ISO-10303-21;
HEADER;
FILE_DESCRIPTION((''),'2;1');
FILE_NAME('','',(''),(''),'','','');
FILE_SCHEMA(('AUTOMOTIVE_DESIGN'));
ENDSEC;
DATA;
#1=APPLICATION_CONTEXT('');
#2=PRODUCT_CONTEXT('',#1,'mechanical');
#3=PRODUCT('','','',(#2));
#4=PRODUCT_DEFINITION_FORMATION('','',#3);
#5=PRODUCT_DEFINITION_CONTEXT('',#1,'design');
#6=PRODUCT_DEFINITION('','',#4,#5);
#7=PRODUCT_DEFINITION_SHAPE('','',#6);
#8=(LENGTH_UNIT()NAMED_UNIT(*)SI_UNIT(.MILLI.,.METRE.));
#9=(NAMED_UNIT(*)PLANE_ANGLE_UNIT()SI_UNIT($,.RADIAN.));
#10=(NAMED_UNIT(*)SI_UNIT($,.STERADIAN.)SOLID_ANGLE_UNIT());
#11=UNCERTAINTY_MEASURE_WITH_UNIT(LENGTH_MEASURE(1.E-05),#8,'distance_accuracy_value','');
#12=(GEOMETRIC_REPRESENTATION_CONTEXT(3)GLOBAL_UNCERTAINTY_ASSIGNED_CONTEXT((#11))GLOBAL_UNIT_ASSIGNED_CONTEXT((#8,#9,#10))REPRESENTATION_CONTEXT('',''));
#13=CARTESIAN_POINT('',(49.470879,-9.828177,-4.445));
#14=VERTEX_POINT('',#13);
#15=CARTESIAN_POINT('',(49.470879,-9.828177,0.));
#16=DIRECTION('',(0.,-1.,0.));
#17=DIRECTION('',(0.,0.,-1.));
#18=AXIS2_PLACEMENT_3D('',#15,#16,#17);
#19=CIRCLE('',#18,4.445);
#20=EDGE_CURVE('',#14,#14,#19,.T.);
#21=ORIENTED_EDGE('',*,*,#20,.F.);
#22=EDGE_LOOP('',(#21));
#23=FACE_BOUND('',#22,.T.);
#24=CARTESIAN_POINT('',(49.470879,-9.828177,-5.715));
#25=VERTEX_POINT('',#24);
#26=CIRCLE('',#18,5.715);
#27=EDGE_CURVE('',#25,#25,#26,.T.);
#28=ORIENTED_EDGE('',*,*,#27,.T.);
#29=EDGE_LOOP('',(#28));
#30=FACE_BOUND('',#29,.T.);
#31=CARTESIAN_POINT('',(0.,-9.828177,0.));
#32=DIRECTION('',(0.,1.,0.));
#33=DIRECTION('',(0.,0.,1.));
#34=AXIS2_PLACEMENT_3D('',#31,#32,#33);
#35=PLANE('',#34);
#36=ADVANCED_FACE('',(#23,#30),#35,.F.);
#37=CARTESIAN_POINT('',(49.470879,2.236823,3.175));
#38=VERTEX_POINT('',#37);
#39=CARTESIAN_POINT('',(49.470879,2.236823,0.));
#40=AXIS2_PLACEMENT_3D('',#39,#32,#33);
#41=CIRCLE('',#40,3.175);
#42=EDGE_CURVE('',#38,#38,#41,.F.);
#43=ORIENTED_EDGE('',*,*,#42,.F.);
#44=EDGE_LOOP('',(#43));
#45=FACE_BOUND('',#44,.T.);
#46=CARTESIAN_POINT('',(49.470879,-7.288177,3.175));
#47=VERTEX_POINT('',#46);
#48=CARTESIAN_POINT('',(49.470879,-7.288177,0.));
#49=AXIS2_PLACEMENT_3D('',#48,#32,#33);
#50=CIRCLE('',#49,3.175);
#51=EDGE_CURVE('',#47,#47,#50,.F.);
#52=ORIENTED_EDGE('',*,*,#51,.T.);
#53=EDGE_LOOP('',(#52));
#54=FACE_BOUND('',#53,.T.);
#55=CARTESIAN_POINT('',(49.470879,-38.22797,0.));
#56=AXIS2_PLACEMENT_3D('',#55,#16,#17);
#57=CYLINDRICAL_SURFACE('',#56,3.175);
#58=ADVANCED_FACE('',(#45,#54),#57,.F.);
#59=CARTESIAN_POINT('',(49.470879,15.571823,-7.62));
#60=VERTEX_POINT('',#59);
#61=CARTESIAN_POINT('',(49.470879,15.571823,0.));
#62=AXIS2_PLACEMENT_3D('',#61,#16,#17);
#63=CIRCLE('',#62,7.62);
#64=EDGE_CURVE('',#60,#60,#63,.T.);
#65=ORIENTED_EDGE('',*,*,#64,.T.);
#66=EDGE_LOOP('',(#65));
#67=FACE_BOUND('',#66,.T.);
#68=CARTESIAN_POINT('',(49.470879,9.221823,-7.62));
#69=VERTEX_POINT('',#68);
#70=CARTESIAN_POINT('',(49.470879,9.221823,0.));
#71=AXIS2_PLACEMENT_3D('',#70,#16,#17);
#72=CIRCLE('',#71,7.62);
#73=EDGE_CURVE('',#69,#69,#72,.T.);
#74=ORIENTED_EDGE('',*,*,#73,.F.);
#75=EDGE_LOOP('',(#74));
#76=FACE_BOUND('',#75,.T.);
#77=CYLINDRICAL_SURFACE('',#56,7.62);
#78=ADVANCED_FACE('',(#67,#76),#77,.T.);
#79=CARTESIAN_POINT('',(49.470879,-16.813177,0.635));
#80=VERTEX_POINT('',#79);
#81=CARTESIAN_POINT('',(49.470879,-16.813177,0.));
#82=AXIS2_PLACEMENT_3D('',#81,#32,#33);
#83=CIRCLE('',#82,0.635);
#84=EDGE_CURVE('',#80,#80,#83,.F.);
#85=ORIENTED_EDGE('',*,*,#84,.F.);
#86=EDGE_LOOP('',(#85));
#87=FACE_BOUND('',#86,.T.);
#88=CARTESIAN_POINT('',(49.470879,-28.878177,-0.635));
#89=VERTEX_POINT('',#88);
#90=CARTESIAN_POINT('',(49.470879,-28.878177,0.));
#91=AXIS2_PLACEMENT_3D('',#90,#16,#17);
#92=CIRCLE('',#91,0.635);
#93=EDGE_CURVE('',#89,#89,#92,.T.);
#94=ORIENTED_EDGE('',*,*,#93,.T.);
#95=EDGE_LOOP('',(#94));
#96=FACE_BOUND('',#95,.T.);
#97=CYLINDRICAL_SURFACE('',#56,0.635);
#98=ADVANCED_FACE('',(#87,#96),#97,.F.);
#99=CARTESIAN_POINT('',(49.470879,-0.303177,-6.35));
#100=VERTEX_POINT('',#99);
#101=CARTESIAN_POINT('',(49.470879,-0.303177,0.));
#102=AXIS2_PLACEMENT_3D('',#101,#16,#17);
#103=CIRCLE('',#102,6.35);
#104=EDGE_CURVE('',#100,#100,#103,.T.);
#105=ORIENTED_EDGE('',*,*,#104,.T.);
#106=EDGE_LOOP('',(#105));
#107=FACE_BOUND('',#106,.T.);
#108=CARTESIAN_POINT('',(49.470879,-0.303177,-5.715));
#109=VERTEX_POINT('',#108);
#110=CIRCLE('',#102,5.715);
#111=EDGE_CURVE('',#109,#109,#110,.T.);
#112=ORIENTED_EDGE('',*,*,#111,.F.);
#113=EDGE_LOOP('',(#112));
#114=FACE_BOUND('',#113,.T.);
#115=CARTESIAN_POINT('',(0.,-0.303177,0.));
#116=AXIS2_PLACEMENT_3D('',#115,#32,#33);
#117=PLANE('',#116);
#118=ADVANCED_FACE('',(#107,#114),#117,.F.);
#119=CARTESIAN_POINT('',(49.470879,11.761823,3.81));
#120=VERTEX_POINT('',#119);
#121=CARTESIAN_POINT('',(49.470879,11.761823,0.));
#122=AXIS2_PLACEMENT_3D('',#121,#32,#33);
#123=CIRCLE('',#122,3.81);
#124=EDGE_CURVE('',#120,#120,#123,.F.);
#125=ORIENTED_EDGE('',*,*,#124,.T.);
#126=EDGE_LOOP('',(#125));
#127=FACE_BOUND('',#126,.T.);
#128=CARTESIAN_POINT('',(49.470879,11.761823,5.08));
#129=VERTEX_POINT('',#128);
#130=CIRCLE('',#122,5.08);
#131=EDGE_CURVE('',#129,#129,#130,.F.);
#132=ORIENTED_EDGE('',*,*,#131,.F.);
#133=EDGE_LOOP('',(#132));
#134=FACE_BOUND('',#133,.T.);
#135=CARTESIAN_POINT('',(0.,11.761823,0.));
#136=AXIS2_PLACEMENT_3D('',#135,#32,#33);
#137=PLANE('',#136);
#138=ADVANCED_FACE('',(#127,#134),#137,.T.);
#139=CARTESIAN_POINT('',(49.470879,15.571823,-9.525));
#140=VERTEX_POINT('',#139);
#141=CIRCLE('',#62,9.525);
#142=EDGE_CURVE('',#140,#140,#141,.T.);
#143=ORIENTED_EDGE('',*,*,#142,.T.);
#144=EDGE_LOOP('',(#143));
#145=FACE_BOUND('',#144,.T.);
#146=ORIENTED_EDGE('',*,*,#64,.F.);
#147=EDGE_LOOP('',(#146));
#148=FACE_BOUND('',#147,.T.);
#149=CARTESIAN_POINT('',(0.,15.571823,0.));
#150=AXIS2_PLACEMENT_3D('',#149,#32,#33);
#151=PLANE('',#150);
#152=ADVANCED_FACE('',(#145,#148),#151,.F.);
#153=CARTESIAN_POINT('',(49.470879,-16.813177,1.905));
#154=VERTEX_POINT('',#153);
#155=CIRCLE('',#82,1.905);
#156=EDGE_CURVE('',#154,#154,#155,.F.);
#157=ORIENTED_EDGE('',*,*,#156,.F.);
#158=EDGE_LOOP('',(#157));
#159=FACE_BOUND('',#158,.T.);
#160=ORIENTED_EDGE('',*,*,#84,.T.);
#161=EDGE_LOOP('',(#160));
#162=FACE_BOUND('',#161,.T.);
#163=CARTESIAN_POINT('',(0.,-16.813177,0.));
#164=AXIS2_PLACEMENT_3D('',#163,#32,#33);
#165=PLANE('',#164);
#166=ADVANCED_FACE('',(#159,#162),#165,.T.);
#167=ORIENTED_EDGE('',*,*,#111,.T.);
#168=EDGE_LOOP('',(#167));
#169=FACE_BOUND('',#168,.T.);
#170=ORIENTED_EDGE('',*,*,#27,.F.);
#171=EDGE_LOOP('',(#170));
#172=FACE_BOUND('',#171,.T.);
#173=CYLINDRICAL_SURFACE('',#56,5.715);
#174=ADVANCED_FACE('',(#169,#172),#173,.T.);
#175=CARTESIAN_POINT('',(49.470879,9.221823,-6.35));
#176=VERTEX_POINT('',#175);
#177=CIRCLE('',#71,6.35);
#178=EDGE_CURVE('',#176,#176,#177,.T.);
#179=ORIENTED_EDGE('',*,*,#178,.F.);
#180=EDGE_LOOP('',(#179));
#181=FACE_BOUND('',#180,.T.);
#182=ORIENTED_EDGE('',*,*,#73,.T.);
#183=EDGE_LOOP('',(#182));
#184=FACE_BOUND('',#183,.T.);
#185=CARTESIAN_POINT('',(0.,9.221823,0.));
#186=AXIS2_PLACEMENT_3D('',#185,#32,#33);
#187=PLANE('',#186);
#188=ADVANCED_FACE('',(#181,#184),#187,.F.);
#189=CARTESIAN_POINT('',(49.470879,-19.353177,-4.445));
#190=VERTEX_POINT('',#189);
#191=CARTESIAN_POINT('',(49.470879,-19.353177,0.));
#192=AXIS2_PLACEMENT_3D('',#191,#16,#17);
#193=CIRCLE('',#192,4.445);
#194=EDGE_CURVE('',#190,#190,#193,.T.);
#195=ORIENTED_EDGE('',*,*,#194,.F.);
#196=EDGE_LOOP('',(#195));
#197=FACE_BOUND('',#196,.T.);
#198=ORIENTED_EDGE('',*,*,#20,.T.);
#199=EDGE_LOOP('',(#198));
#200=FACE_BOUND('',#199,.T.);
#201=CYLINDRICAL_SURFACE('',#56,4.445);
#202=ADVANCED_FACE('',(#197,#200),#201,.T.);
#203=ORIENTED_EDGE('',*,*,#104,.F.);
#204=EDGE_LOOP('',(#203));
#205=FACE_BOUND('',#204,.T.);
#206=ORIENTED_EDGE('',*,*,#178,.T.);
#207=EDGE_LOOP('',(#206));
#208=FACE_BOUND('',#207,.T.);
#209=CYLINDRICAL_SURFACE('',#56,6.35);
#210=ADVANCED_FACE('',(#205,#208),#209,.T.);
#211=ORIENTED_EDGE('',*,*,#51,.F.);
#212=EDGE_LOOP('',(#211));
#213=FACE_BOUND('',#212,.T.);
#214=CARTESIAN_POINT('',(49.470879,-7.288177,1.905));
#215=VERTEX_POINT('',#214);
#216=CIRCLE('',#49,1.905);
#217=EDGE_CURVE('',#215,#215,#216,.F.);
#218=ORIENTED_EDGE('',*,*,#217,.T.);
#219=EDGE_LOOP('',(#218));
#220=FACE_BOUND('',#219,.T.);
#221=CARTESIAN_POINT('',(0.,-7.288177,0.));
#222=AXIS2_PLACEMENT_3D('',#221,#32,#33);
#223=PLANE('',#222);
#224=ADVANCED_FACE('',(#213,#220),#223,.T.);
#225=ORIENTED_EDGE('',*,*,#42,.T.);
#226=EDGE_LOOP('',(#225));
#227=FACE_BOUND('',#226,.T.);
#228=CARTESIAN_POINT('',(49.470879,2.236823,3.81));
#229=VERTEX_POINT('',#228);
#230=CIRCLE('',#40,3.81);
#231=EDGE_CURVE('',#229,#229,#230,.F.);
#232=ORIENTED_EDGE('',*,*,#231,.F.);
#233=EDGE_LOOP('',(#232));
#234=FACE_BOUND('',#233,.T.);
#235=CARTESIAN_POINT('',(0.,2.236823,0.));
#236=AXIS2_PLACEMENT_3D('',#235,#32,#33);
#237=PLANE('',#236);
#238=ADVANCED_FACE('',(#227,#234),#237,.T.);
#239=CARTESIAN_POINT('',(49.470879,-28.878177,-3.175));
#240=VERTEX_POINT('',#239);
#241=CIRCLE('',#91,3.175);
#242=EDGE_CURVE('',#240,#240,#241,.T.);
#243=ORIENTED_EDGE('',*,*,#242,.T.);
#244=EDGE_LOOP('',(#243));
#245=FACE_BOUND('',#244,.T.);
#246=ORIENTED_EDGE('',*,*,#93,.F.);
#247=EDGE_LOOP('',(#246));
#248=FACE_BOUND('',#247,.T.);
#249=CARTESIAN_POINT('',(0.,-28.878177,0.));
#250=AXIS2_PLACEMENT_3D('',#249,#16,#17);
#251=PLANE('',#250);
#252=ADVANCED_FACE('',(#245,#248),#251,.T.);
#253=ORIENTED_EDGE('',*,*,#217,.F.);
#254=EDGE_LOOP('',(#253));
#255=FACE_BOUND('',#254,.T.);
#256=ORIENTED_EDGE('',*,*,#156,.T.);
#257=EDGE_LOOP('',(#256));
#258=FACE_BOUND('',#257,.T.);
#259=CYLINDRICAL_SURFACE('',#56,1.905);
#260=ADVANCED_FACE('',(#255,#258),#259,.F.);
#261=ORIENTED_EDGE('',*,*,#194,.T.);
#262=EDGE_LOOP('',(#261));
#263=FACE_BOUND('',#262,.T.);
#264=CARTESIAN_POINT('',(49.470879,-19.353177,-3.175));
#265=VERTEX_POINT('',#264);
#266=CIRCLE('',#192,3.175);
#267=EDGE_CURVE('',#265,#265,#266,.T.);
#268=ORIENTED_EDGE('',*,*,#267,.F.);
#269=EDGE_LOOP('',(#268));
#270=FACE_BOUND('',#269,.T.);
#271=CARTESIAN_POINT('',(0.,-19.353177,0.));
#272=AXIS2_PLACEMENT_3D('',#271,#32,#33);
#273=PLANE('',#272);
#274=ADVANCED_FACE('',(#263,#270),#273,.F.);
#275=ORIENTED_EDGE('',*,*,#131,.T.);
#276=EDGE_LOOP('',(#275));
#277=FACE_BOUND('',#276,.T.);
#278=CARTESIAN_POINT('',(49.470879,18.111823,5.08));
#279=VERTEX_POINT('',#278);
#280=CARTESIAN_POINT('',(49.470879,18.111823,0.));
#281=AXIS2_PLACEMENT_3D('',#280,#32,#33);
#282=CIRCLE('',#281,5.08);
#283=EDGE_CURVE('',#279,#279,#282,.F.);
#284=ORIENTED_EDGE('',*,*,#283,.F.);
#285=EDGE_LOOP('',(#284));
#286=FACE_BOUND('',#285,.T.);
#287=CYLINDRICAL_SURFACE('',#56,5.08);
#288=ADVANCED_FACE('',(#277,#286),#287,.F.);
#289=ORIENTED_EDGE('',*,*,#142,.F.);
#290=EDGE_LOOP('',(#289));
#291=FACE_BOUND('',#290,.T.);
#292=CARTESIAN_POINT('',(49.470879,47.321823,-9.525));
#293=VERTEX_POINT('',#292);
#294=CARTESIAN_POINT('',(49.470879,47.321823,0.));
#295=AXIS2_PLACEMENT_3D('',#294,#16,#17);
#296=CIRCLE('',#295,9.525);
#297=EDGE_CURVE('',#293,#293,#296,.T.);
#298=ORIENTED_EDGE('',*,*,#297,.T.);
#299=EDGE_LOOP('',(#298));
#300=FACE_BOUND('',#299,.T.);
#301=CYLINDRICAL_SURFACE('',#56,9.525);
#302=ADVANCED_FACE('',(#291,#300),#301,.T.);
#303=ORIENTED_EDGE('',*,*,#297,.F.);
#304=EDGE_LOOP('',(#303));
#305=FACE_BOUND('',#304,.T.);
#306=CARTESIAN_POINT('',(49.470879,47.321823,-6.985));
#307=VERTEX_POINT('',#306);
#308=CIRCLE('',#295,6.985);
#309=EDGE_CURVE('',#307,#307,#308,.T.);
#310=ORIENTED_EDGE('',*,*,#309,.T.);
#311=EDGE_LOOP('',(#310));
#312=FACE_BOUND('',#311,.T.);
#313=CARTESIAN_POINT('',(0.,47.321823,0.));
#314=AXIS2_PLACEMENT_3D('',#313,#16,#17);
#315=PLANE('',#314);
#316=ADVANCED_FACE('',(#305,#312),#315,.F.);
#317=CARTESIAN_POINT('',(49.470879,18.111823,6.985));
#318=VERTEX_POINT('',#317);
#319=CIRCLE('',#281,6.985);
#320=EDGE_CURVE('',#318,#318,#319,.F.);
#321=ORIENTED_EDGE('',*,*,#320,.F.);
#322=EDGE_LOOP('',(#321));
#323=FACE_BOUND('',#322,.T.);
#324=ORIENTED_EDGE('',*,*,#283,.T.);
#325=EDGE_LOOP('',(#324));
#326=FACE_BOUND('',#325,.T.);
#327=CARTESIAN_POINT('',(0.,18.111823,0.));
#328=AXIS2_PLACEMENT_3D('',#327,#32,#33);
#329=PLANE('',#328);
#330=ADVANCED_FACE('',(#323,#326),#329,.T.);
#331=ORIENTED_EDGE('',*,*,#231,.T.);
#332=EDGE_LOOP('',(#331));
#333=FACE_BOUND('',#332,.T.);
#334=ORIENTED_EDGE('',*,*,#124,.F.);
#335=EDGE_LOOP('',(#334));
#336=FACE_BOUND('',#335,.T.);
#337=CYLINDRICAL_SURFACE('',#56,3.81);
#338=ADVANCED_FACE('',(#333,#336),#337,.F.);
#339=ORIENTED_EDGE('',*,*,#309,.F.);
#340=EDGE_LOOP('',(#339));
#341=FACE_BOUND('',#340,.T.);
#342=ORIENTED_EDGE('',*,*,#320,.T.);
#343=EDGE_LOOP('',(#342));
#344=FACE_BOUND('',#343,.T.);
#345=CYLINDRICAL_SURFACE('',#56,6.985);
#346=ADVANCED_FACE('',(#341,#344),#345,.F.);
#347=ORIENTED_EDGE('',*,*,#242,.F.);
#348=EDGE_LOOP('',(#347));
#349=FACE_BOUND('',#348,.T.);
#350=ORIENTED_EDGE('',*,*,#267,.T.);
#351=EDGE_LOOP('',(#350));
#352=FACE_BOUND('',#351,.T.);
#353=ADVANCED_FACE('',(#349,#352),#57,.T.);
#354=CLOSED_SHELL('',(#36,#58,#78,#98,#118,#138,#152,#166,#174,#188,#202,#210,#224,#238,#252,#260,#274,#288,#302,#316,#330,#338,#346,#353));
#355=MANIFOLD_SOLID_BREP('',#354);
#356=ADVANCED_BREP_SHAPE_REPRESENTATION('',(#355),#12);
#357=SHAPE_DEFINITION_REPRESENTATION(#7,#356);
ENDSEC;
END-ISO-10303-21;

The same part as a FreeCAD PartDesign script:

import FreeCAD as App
import Part
import Sketcher
from FreeCAD import Vector
Q = App.Units.Quantity


def faces_at(feature, points):
    """Names of the faces that lie closest to the given points."""
    faces = feature.Shape.Faces
    near = lambda p: min(range(len(faces)), key=lambda i: faces[i].distToShape(Part.Vertex(*p))[0])
    return sorted({f"Face{near(p) + 1}" for p in points})

doc = App.newDocument("Part")
body = doc.addObject("PartDesign::Body", "Body")

# Sketch on XY plane
sketch1 = doc.addObject("Sketcher::SketchObject", "Sketch")
body.addObject(sketch1)
sketch1.AttachmentSupport = (doc.XY_Plane, [""])
sketch1.MapMode = "FlatFace"
sketch1.addGeometry([
    Part.LineSegment(Vector(49.470879, 47.321823, 0), Vector(39.945879, 47.321823, 0)),  # 0
    Part.LineSegment(Vector(39.945879, 47.321823, 0), Vector(39.945879, 15.571823, 0)),  # 1
    Part.LineSegment(Vector(39.945879, 15.571823, 0), Vector(41.850879, 15.571823, 0)),  # 2
    Part.LineSegment(Vector(41.850879, 15.571823, 0), Vector(41.850879, 9.221823, 0)),  # 3
    Part.LineSegment(Vector(41.850879, 9.221823, 0), Vector(43.120879, 9.221823, 0)),  # 4
    Part.LineSegment(Vector(43.120879, 9.221823, 0), Vector(43.120879, -0.303177, 0)),  # 5
    Part.LineSegment(Vector(43.120879, -0.303177, 0), Vector(43.755879, -0.303177, 0)),  # 6
    Part.LineSegment(Vector(43.755879, -0.303177, 0), Vector(43.755879, -9.828177, 0)),  # 7
    Part.LineSegment(Vector(43.755879, -9.828177, 0), Vector(45.025879, -9.828177, 0)),  # 8
    Part.LineSegment(Vector(45.025879, -9.828177, 0), Vector(45.025879, -19.353177, 0)),  # 9
    Part.LineSegment(Vector(45.025879, -19.353177, 0), Vector(46.295879, -19.353177, 0)),  # 10
    Part.LineSegment(Vector(46.295879, -19.353177, 0), Vector(46.295879, -28.878177, 0)),  # 11
    Part.LineSegment(Vector(46.295879, -28.878177, 0), Vector(49.470879, -28.878177, 0)),  # 12
    Part.LineSegment(Vector(49.470879, -28.878177, 0), Vector(49.470879, 47.321823, 0)),  # 13
], False)
sketch1.addGeometry(Part.LineSegment(Vector(49.470879, -28.878177, 0), Vector(49.470879, 47.321823, 0)), True)  # axis
sketch1.addConstraint([
    Sketcher.Constraint("Coincident", 0, 2, 1, 1),
    Sketcher.Constraint("Coincident", 1, 2, 2, 1),
    Sketcher.Constraint("Coincident", 2, 2, 3, 1),
    Sketcher.Constraint("Coincident", 3, 2, 4, 1),
    Sketcher.Constraint("Coincident", 4, 2, 5, 1),
    Sketcher.Constraint("Coincident", 5, 2, 6, 1),
    Sketcher.Constraint("Coincident", 6, 2, 7, 1),
    Sketcher.Constraint("Coincident", 7, 2, 8, 1),
    Sketcher.Constraint("Coincident", 8, 2, 9, 1),
    Sketcher.Constraint("Coincident", 9, 2, 10, 1),
    Sketcher.Constraint("Coincident", 10, 2, 11, 1),
    Sketcher.Constraint("Coincident", 11, 2, 12, 1),
    Sketcher.Constraint("Coincident", 12, 2, 13, 1),
    Sketcher.Constraint("Coincident", 13, 2, 0, 1),
    Sketcher.Constraint("Horizontal", 0),
    Sketcher.Constraint("Vertical", 1),
    Sketcher.Constraint("Horizontal", 2),
    Sketcher.Constraint("Vertical", 3),
    Sketcher.Constraint("Horizontal", 4),
    Sketcher.Constraint("Vertical", 5),
    Sketcher.Constraint("Horizontal", 6),
    Sketcher.Constraint("Vertical", 7),
    Sketcher.Constraint("Horizontal", 8),
    Sketcher.Constraint("Vertical", 9),
    Sketcher.Constraint("Horizontal", 10),
    Sketcher.Constraint("Vertical", 11),
    Sketcher.Constraint("Horizontal", 12),
    Sketcher.Constraint("Vertical", 13),
    Sketcher.Constraint("Vertical", 14),
    Sketcher.Constraint("Coincident", 14, 1, 12, 2),
    Sketcher.Constraint("Horizontal", 0, 2, 14, 2),
    Sketcher.Constraint("Equal", 4, 8),
    Sketcher.Constraint("Equal", 8, 10),
    Sketcher.Constraint("Equal", 0, 5),
    Sketcher.Constraint("Equal", 5, 7),
    Sketcher.Constraint("Equal", 7, 9),
    Sketcher.Constraint("Equal", 9, 11),
    Sketcher.Constraint("DistanceY", 13, 1, 13, 2, Q("3 in")),
    Sketcher.Constraint("DistanceY", 7, 2, 2, 2, Q("1 in")),
    Sketcher.Constraint("DistanceX", 4, 1, 4, 2, Q("0.05 in")),
    Sketcher.Constraint("DistanceY", 1, 2, 1, 1, Q("1.25 in")),
    Sketcher.Constraint("DistanceX", 2, 2, 13, 2, Q("0.3 in")),
    Sketcher.Constraint("DistanceX", 6, 1, 6, 2, Q("0.025 in")),
    Sketcher.Constraint("DistanceX", -1, 1, 0, 2, 39.945879),
    Sketcher.Constraint("DistanceY", -1, 1, 0, 2, 47.321823),
])
revolution = doc.addObject("PartDesign::Revolution", "Revolution")
body.addObject(revolution)
revolution.Profile = sketch1
revolution.ReferenceAxis = (sketch1, ["Axis0"])
revolution.Angle = 360
doc.recompute()

thickness = doc.addObject("PartDesign::Thickness", "Thickness")
body.addObject(thickness)
thickness.Base = (revolution, faces_at(revolution, [(49.471, 47.322, 0), (49.471, -28.878, 0)]))
thickness.Value = Q("0.1 in")
thickness.Reversed = True
thickness.Join = "Intersection"

doc.recompute()
